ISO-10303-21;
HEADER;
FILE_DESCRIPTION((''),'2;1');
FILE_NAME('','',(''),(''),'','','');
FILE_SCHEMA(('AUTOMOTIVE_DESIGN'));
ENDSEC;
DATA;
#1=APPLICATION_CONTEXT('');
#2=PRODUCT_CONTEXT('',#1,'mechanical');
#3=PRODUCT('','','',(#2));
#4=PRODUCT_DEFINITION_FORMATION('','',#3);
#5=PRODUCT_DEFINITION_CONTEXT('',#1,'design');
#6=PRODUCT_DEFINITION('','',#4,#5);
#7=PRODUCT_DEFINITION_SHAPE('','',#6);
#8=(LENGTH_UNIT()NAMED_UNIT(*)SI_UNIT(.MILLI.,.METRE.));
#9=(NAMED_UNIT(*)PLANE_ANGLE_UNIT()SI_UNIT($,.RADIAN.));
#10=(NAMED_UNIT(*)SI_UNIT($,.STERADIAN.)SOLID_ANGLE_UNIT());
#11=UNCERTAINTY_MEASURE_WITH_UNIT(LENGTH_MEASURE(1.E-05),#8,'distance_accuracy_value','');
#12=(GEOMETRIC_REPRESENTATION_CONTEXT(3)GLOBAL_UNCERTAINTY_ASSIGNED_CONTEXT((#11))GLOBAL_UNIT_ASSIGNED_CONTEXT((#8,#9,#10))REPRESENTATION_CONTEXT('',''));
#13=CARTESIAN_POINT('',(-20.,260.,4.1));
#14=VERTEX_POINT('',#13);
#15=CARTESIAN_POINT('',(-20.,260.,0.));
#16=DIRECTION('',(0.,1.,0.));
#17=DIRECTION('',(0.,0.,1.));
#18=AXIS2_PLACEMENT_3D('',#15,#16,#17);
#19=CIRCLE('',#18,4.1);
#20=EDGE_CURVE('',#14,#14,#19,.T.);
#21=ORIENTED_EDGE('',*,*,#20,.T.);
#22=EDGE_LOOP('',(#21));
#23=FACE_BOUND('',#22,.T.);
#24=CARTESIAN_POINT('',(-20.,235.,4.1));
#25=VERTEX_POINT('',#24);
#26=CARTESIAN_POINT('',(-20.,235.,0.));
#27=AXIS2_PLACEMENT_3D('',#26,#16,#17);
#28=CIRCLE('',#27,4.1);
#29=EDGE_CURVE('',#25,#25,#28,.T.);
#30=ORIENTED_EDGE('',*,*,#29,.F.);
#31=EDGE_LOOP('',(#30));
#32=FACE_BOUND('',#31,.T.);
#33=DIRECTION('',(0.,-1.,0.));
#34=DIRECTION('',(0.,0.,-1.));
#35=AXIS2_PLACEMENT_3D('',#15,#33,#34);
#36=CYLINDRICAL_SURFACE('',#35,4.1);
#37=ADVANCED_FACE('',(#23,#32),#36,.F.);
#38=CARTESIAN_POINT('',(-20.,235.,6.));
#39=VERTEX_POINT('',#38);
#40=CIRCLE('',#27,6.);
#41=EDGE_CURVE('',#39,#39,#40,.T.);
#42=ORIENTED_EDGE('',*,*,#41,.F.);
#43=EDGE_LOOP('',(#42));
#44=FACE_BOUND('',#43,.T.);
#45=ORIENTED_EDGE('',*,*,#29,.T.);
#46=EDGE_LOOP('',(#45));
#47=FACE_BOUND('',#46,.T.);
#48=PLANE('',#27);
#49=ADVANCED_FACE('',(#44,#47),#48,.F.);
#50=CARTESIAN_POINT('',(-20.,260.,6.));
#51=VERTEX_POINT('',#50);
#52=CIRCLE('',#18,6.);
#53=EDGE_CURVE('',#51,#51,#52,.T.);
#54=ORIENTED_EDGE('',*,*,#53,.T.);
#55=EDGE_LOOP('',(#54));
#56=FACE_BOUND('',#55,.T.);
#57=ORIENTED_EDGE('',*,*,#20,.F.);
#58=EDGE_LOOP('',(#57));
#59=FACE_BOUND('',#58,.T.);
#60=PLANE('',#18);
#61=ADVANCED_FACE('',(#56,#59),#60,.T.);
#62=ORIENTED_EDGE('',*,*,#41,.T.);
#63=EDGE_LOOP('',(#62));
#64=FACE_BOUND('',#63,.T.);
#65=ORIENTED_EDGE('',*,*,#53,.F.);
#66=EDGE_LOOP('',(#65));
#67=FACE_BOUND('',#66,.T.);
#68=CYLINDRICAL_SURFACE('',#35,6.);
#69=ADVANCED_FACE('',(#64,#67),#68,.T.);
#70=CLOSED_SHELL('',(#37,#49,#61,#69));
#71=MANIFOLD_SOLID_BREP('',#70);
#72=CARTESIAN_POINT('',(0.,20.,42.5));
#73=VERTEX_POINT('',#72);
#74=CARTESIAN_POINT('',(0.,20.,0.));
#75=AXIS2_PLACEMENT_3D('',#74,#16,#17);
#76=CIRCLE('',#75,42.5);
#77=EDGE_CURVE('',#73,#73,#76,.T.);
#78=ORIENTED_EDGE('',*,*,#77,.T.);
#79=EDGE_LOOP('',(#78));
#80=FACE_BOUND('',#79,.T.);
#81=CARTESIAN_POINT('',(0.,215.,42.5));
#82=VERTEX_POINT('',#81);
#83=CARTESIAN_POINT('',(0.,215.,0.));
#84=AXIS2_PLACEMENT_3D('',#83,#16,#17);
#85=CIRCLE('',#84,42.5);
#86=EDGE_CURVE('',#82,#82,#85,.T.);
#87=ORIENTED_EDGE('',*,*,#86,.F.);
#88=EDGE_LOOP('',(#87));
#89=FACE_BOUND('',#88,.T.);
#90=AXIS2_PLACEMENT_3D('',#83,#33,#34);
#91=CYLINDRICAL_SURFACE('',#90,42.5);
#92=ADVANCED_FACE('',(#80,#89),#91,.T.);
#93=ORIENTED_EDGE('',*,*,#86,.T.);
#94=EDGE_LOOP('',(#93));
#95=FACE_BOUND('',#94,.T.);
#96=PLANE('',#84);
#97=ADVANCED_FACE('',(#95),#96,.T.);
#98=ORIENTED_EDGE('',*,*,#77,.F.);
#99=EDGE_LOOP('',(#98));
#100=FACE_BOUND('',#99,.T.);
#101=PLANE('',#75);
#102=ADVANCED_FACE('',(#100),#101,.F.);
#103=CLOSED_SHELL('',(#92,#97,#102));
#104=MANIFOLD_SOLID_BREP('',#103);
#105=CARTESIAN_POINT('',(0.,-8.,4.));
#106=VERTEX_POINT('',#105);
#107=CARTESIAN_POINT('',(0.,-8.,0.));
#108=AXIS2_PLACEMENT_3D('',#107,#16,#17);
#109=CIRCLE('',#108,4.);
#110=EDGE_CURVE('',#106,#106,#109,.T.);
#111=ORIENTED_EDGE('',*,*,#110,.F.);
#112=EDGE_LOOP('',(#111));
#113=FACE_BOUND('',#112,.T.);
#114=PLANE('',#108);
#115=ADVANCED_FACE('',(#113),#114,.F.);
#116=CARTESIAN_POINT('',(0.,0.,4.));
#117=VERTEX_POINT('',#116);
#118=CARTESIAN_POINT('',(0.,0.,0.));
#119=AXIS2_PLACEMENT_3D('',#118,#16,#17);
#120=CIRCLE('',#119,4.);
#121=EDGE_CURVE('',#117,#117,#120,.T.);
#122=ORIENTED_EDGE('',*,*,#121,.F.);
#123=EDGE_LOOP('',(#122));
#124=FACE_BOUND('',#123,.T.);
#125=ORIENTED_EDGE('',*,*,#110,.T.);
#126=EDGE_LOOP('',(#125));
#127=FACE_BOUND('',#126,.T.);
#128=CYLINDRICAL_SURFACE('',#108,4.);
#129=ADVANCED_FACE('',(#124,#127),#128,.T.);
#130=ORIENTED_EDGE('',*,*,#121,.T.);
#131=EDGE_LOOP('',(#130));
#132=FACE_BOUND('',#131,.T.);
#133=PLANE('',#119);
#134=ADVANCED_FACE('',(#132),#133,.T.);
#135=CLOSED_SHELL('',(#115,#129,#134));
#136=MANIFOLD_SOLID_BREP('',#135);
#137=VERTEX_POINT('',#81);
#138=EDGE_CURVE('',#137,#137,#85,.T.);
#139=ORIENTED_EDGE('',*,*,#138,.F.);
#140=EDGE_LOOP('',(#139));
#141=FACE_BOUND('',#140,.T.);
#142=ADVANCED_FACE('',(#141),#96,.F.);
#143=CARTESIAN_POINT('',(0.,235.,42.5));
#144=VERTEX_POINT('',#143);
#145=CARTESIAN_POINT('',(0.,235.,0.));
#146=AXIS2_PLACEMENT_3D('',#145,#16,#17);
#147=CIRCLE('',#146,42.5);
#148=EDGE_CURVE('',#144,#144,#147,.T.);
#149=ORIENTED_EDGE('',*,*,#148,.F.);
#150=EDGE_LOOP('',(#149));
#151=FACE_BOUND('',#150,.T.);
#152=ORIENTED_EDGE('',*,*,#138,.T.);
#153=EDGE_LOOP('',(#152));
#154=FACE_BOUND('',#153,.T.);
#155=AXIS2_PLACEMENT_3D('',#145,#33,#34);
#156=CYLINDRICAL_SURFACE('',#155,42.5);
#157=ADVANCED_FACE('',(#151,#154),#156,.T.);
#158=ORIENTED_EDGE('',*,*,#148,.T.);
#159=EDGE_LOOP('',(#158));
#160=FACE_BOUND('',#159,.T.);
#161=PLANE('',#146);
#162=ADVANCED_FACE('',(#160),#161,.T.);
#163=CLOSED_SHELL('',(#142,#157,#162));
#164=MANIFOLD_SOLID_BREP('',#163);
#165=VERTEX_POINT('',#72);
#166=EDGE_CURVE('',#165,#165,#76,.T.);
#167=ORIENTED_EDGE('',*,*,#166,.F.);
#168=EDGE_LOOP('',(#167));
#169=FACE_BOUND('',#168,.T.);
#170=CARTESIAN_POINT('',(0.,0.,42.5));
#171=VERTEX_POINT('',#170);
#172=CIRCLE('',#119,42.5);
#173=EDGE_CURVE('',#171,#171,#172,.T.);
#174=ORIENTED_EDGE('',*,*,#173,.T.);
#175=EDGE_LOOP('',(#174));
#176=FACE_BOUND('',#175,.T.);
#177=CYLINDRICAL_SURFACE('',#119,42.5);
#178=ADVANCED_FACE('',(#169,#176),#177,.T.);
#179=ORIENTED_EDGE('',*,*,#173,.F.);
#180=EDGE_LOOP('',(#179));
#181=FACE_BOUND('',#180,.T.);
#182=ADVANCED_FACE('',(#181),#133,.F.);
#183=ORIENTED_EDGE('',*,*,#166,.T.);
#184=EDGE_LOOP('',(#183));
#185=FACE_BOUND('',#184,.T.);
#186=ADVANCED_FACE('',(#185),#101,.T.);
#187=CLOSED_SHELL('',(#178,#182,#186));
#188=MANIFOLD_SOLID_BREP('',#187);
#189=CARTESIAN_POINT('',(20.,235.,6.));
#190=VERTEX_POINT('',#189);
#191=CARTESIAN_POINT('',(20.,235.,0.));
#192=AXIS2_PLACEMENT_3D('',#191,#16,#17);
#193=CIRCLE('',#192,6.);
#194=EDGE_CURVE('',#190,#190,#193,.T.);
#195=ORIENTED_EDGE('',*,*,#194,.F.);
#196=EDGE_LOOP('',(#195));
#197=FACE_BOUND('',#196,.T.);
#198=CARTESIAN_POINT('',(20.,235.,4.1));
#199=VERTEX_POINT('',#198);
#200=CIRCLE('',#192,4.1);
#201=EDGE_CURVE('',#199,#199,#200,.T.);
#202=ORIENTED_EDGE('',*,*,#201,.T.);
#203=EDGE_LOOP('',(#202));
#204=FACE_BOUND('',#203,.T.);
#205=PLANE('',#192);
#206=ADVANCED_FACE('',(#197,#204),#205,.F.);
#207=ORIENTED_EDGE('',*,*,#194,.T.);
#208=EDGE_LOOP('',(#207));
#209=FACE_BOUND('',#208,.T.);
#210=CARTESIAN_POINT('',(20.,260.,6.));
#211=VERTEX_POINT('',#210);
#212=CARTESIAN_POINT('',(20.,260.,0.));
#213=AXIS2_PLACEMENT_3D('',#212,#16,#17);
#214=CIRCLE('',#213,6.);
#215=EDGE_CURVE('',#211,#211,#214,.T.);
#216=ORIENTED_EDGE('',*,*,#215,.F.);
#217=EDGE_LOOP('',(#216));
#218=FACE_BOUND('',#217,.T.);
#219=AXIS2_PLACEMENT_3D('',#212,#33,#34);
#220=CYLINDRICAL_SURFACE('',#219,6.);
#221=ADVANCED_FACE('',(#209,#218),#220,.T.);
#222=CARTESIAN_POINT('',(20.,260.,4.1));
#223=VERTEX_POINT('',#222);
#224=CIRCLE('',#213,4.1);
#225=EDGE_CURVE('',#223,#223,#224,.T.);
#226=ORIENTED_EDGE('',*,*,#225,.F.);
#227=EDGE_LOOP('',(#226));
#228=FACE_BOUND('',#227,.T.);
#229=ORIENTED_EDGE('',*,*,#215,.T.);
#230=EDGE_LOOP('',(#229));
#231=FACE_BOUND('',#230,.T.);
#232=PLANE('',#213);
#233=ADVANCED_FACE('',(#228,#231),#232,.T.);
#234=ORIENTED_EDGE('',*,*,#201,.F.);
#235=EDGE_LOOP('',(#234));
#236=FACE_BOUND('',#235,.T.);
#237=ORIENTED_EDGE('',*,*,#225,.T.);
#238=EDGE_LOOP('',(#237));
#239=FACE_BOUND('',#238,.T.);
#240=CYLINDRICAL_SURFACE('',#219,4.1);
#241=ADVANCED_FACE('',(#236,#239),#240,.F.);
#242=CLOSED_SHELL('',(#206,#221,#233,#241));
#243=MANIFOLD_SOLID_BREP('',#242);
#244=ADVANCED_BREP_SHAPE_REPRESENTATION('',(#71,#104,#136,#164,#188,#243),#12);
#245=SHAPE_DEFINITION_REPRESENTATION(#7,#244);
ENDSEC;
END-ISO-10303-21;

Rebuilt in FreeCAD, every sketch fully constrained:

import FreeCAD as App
import Part
import Sketcher
from FreeCAD import Vector
Q = App.Units.Quantity

doc = App.newDocument("Part")
body = doc.addObject("PartDesign::Body", "Body")

# Sketch on XZ plane
sketch1 = body.newObject("Sketcher::SketchObject", "Sketch")
sketch1.AttachmentSupport = (doc.getObject("XZ_Plane"), [""])
sketch1.MapMode = "FlatFace"
sketch1.AttachmentOffset = App.Placement(Vector(0, 0, -20), App.Rotation())
sketch1.addGeometry(Part.Circle(Vector(0, 0, 0), Vector(0, 0, 1), 42), False)
sketch1.addConstraint([
    Sketcher.Constraint("Coincident", 0, 3, -1, 1),
    Sketcher.Constraint("Diameter", 0, Q("85 mm")),
])
pad1 = body.newObject("PartDesign::Pad", "Pad")
pad1.Profile = sketch1
pad1.Length = 195
pad1.Reversed = True
body2 = doc.addObject("PartDesign::Body", "Body001")

# Sketch on XZ plane
sketch2 = body2.newObject("Sketcher::SketchObject", "Sketch001")
sketch2.AttachmentSupport = (doc.getObject("XZ_Plane001"), [""])
sketch2.MapMode = "FlatFace"
sketch2.AttachmentOffset = App.Placement(Vector(0, 0, -20), App.Rotation())
sketch2.addGeometry(Part.Circle(Vector(0, 0, 0), Vector(0, 0, 1), 42), False)
sketch2.addConstraint([
    Sketcher.Constraint("Coincident", 0, 3, -1, 1),
    Sketcher.Constraint("Diameter", 0, Q("85 mm")),
])
pad2 = body2.newObject("PartDesign::Pad", "Pad001")
pad2.Profile = sketch2
pad2.Length = 20
body3 = doc.addObject("PartDesign::Body", "Body002")

# Sketch on XZ plane
sketch3 = body3.newObject("Sketcher::SketchObject", "Sketch002")
sketch3.AttachmentSupport = (doc.getObject("XZ_Plane002"), [""])
sketch3.MapMode = "FlatFace"
sketch3.AttachmentOffset = App.Placement(Vector(0, 0, -215), App.Rotation())
sketch3.addGeometry(Part.Circle(Vector(0, 0, 0), Vector(0, 0, 1), 42), False)
sketch3.addConstraint([
    Sketcher.Constraint("Coincident", 0, 3, -1, 1),
    Sketcher.Constraint("Diameter", 0, Q("85 mm")),
])
pad3 = body3.newObject("PartDesign::Pad", "Pad002")
pad3.Profile = sketch3
pad3.Length = 20
pad3.Reversed = True
body4 = doc.addObject("PartDesign::Body", "Body003")

# Sketch on XZ plane
sketch4 = body4.newObject("Sketcher::SketchObject", "Sketch003")
sketch4.AttachmentSupport = (doc.getObject("XZ_Plane003"), [""])
sketch4.MapMode = "FlatFace"
sketch4.addGeometry(Part.Circle(Vector(0, 0, 0), Vector(0, 0, 1), 4), False)
sketch4.addConstraint([
    Sketcher.Constraint("Coincident", 0, 3, -1, 1),
    Sketcher.Constraint("Diameter", 0, Q("8 mm")),
])
pad4 = body4.newObject("PartDesign::Pad", "Pad003")
pad4.Profile = sketch4
pad4.Length = 8
body5 = doc.addObject("PartDesign::Body", "Body004")

# Sketch on XZ plane
sketch5 = body5.newObject("Sketcher::SketchObject", "Sketch004")
sketch5.AttachmentSupport = (doc.getObject("XZ_Plane004"), [""])
sketch5.MapMode = "FlatFace"
sketch5.AttachmentOffset = App.Placement(Vector(0, 0, -235), App.Rotation())
sketch5.addGeometry([
    Part.Circle(Vector(-20, 0, 0), Vector(0, 0, 1), 6),
    Part.Circle(Vector(-20, 0, 0), Vector(0, 0, 1), 4.1),
], False)
sketch5.addConstraint([
    Sketcher.Constraint("Coincident", 1, 3, 0, 3),
    Sketcher.Constraint("PointOnObject", 0, 3, -1),
    Sketcher.Constraint("Diameter", 0, Q("12 mm")),
    Sketcher.Constraint("Diameter", 1, Q("8.2 mm")),
    Sketcher.Constraint("DistanceX", 0, 3, -1, 1, Q("20 mm")),
])
pad5 = body5.newObject("PartDesign::Pad", "Pad004")
pad5.Profile = sketch5
pad5.Length = 25
pad5.Reversed = True
body6 = doc.addObject("PartDesign::Body", "Body005")

# Sketch on XZ plane
sketch6 = body6.newObject("Sketcher::SketchObject", "Sketch005")
sketch6.AttachmentSupport = (doc.getObject("XZ_Plane005"), [""])
sketch6.MapMode = "FlatFace"
sketch6.AttachmentOffset = App.Placement(Vector(0, 0, -235), App.Rotation())
sketch6.addGeometry([
    Part.Circle(Vector(20, 0, 0), Vector(0, 0, 1), 6),
    Part.Circle(Vector(20, 0, 0), Vector(0, 0, 1), 4.1),
], False)
sketch6.addConstraint([
    Sketcher.Constraint("Coincident", 1, 3, 0, 3),
    Sketcher.Constraint("PointOnObject", 0, 3, -1),
    Sketcher.Constraint("Diameter", 0, Q("12 mm")),
    Sketcher.Constraint("Diameter", 1, Q("8.2 mm")),
    Sketcher.Constraint("DistanceX", -1, 1, 0, 3, Q("20 mm")),
])
pad6 = body6.newObject("PartDesign::Pad", "Pad005")
pad6.Profile = sketch6
pad6.Length = 25
pad6.Reversed = True

doc.recompute()
